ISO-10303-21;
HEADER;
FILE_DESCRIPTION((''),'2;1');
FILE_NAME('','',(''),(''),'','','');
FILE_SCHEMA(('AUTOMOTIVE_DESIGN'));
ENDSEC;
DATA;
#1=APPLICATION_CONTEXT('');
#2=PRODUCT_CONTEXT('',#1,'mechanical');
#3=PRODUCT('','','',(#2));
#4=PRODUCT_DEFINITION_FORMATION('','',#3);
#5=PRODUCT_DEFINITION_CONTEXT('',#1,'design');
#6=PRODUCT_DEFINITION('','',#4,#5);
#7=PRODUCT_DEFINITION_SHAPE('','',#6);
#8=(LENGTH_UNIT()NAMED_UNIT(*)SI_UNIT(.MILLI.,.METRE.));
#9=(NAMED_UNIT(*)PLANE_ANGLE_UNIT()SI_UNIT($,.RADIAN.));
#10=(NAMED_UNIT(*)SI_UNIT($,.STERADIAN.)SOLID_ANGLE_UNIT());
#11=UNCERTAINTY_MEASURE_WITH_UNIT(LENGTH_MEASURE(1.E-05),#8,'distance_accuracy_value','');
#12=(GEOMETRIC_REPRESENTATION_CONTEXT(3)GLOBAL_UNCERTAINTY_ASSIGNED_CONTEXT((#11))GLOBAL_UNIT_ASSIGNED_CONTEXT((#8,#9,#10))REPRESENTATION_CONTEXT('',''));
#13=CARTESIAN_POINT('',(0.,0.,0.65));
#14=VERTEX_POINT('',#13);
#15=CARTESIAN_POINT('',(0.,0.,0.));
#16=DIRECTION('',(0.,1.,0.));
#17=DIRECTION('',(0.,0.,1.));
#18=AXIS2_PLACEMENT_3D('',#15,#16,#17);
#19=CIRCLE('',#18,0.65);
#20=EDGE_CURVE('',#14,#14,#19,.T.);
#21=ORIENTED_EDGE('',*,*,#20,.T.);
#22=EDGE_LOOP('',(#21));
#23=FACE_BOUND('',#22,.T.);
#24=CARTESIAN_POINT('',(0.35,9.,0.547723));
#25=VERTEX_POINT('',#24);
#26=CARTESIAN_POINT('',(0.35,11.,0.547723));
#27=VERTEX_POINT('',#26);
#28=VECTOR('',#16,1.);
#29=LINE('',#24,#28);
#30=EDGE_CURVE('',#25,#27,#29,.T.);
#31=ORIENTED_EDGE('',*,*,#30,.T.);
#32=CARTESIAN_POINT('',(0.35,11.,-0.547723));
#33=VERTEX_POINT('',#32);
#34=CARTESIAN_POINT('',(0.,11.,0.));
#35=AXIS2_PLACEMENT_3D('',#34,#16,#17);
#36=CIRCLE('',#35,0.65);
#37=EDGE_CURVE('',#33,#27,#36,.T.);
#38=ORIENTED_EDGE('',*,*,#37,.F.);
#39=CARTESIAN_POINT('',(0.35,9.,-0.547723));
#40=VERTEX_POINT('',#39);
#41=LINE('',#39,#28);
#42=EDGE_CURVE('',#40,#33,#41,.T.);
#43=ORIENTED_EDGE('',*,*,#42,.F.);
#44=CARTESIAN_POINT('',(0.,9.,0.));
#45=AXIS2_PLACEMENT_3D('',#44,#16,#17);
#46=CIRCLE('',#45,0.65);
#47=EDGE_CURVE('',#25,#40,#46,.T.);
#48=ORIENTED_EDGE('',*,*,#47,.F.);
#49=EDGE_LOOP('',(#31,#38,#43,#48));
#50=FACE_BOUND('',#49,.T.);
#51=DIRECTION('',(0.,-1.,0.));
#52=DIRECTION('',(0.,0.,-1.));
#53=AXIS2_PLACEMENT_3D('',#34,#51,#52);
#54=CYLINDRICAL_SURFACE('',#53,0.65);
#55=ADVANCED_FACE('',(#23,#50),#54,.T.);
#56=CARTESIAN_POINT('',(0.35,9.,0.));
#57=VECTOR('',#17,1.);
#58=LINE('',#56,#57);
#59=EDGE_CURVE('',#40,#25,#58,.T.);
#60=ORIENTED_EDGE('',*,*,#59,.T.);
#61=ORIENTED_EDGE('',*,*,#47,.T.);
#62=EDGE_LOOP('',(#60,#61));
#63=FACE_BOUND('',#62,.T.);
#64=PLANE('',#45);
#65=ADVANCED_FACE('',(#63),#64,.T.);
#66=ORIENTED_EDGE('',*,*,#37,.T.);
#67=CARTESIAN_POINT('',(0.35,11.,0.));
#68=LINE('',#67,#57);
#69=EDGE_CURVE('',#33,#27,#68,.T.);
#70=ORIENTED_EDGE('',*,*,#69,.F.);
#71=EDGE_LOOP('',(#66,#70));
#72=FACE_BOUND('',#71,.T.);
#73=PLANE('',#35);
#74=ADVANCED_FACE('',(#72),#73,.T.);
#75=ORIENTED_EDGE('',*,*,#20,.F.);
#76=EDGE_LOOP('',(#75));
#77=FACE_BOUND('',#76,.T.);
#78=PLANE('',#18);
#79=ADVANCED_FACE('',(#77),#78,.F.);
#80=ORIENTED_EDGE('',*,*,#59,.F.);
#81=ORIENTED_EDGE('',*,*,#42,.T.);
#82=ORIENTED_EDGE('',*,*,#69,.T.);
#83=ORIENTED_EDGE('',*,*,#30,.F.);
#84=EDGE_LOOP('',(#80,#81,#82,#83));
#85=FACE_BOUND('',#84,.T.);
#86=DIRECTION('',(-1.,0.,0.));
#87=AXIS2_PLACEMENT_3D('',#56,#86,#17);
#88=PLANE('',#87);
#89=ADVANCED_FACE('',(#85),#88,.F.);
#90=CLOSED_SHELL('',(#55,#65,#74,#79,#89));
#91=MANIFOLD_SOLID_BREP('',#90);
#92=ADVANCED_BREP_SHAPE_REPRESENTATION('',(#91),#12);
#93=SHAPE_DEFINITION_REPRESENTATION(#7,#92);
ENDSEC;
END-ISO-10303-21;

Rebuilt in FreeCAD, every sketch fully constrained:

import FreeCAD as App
import Part
import Sketcher

V = App.Vector


def add_polygon(sketch, points):
    """Adds a closed chain of lines whose ends are joined by coincident constraints."""
    first, n = sketch.GeometryCount, len(points)
    for a, b in zip(points, points[1:] + points[:1]):
        sketch.addGeometry(Part.LineSegment(App.Vector(*a, 0), App.Vector(*b, 0)), False)
    for i in range(n):
        sketch.addConstraint(Sketcher.Constraint("Coincident", first + i, 2, first + (i + 1) % n, 1))

doc = App.newDocument("Part")
params = doc.addObject("Spreadsheet::Sheet", "Params")
for row, (alias, value) in enumerate([
    ("sketch1_diameter", "1.3 mm"),
    ("pad1_length", "11 mm"),
    ("pocket1_length", "2 mm"),
], start=1):
    params.set(f"A{row}", alias)
    params.set(f"B{row}", "=" + value)
    params.setAlias(f"B{row}", alias)

body = doc.addObject("PartDesign::Body", "Body")

# Sketch on XZ plane
sketch1 = doc.addObject("Sketcher::SketchObject", "Sketch")
body.addObject(sketch1)
sketch1.AttachmentSupport = (doc.XZ_Plane, [""])
sketch1.MapMode = "FlatFace"
sketch1.addGeometry(Part.Circle(V(0, 0, 0), V(0, 0, 1), 0.65), False)
sketch1.addConstraint([
    Sketcher.Constraint("Coincident", 0, 3, -1, 1),
    Sketcher.Constraint("Diameter", 0, 1.3),
])
sketch1.setExpression("Constraints[1]", "Params.sketch1_diameter")
pad1 = doc.addObject("PartDesign::Pad", "Pad")
body.addObject(pad1)
pad1.Profile = sketch1
pad1.setExpression("Length", "Params.pad1_length")
pad1.Reversed = True

# Sketch on XZ plane
sketch2 = doc.addObject("Sketcher::SketchObject", "Sketch001")
body.addObject(sketch2)
sketch2.AttachmentSupport = (doc.XZ_Plane, [""])
sketch2.MapMode = "FlatFace"
sketch2.AttachmentOffset = App.Placement(V(0, 0, -11), App.Rotation())
add_polygon(sketch2, [(0.35, -13.668325), (0.35, 13.668325), (26.591204, 13.668325), (26.591204, -13.668325)])  # lines 0-3
sketch2.addConstraint([
    Sketcher.Constraint("Vertical", 0),
    Sketcher.Constraint("Horizontal", 1),
    Sketcher.Constraint("Vertical", 2),
    Sketcher.Constraint("Horizontal", 3),
    Sketcher.Constraint("DistanceX", -1, 1, 0, 2, 0.35),
    Sketcher.Constraint("DistanceY", 0, 1, 0, 2, 27.336649),
    Sketcher.Constraint("DistanceX", 1, 1, 1, 2, 26.241204),
    Sketcher.Constraint("DistanceY", -1, 1, 0, 2, 13.668325),
])
pocket1 = doc.addObject("PartDesign::Pocket", "Pocket")
body.addObject(pocket1)
pocket1.Profile = sketch2
pocket1.setExpression("Length", "Params.pocket1_length")
pocket1.Reversed = True

doc.recompute()
